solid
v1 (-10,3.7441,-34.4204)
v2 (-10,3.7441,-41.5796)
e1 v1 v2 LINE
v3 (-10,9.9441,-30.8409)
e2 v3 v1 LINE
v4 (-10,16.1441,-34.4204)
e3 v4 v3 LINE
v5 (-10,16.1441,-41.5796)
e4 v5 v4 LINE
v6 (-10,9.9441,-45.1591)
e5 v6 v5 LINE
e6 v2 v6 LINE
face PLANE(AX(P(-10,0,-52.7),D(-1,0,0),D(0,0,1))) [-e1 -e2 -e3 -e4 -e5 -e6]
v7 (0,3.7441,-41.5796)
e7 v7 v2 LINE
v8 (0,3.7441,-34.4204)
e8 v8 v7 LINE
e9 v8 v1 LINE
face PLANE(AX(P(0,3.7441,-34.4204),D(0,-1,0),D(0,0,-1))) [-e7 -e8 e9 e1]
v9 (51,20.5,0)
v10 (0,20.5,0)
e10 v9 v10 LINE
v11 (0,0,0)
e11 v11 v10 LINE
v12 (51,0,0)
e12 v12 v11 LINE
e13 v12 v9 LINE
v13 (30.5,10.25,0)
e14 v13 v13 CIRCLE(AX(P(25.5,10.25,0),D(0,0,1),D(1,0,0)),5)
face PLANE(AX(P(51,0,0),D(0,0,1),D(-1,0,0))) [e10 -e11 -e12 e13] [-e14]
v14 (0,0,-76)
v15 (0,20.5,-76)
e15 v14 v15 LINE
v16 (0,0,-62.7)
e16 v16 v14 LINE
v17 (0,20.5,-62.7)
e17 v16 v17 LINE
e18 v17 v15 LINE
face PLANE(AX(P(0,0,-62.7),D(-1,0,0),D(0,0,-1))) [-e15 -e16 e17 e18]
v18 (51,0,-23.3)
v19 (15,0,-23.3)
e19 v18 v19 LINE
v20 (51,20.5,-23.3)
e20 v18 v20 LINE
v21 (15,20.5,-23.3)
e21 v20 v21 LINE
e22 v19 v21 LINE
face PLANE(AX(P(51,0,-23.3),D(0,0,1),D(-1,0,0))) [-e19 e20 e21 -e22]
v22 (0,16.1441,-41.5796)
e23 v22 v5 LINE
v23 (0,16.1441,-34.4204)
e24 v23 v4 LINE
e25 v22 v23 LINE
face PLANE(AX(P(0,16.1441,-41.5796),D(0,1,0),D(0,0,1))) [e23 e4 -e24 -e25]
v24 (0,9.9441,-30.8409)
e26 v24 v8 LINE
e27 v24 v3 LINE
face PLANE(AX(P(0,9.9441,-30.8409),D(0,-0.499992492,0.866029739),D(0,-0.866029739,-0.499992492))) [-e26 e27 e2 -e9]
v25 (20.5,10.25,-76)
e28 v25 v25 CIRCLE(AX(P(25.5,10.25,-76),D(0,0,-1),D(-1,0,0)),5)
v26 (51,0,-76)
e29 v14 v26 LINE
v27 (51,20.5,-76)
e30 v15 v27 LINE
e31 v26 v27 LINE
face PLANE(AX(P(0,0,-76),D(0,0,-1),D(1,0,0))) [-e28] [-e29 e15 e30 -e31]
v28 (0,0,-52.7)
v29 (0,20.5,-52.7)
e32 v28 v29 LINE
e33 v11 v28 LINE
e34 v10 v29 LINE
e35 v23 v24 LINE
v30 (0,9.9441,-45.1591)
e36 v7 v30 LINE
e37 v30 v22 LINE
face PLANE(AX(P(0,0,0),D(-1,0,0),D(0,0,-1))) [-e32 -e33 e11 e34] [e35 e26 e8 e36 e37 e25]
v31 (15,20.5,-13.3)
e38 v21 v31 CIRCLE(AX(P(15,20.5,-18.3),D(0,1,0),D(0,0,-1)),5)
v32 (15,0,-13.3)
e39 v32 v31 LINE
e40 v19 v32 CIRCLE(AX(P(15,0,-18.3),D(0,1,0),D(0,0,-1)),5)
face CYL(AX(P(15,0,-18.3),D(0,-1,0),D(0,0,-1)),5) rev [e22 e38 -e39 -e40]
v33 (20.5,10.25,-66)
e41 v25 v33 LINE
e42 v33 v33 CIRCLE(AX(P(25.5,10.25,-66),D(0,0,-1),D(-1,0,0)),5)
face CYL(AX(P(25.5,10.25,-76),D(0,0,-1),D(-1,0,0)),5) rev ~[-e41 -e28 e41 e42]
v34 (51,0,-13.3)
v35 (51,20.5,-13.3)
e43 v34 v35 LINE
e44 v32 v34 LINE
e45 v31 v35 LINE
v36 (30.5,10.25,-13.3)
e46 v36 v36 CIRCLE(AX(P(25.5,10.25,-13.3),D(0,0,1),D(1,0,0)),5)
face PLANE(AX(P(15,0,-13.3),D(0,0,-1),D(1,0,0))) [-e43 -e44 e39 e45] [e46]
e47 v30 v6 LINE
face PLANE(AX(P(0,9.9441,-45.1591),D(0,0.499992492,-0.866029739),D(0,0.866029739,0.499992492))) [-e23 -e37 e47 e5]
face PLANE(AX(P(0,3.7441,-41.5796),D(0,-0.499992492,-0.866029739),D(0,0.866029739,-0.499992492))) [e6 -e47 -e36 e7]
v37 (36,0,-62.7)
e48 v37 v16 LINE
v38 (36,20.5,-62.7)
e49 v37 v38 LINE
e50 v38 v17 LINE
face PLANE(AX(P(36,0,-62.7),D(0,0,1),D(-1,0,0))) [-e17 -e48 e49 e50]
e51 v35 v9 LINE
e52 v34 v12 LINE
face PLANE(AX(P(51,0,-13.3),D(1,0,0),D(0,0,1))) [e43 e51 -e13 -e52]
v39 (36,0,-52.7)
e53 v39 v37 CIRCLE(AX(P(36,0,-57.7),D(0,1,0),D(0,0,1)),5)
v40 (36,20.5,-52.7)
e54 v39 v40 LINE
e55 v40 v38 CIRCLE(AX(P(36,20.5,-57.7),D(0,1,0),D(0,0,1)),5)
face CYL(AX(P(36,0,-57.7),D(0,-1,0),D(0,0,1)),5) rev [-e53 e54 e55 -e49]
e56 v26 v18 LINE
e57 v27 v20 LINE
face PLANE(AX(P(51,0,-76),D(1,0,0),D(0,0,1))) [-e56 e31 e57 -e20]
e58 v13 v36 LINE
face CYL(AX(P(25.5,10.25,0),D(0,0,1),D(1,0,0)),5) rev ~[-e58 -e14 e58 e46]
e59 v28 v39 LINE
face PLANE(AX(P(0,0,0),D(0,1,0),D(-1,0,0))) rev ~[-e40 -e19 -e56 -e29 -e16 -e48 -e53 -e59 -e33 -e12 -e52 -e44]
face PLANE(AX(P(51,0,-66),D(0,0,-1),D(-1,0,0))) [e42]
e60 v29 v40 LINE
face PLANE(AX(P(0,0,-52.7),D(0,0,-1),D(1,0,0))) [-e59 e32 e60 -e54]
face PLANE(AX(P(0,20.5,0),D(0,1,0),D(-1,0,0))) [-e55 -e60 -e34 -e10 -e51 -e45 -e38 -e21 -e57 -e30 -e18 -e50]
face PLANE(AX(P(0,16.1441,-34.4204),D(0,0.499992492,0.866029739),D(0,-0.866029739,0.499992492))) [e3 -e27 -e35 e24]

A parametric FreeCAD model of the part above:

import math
import FreeCAD as App
import Part
import Sketcher

V = App.Vector
Q = App.Units.Quantity

doc = App.newDocument("Part")
body = doc.addObject("PartDesign::Body", "Body")

# Sketch on XZ plane
sketch1 = body.newObject("Sketcher::SketchObject", "Sketch")
sketch1.AttachmentSupport = (doc.getObject("XZ_Plane"), [""])
sketch1.MapMode = "FlatFace"
sketch1.addGeometry([
    Part.LineSegment(V(0, -52.7, 0), V(0, 0, 0)),  # 0
    Part.LineSegment(V(0, 0, 0), V(51, 0, 0)),  # 1
    Part.LineSegment(V(51, 0, 0), V(51, -13.3, 0)),  # 2
    Part.LineSegment(V(51, -13.3, 0), V(15, -13.3, 0)),  # 3
    Part.ArcOfCircle(Part.Circle(V(15, -18.3, 0), V(0, 0, 1), 5), math.radians(90), math.radians(270)),  # 4
    Part.LineSegment(V(15, -23.3, 0), V(51, -23.3, 0)),  # 5
    Part.LineSegment(V(51, -23.3, 0), V(51, -76, 0)),  # 6
    Part.LineSegment(V(51, -76, 0), V(0, -76, 0)),  # 7
    Part.LineSegment(V(0, -76, 0), V(0, -62.7, 0)),  # 8
    Part.LineSegment(V(0, -62.7, 0), V(36, -62.7, 0)),  # 9
    Part.ArcOfCircle(Part.Circle(V(36, -57.7, 0), V(0, 0, 1), 5), math.radians(-90), math.radians(90)),  # 10
    Part.LineSegment(V(36, -52.7, 0), V(0, -52.7, 0)),  # 11
], False)
sketch1.addConstraint([
    Sketcher.Constraint("Coincident", 0, 2, 1, 1),
    Sketcher.Constraint("Coincident", 1, 2, 2, 1),
    Sketcher.Constraint("Coincident", 2, 2, 3, 1),
    Sketcher.Constraint("Tangent", 3, 2, 4, 1),
    Sketcher.Constraint("Tangent", 4, 2, 5, 1),
    Sketcher.Constraint("Coincident", 5, 2, 6, 1),
    Sketcher.Constraint("Coincident", 6, 2, 7, 1),
    Sketcher.Constraint("Coincident", 7, 2, 8, 1),
    Sketcher.Constraint("Coincident", 8, 2, 9, 1),
    Sketcher.Constraint("Tangent", 9, 2, 10, 1),
    Sketcher.Constraint("Tangent", 10, 2, 11, 1),
    Sketcher.Constraint("Coincident", 11, 2, 0, 1),
    Sketcher.Constraint("Vertical", 0),
    Sketcher.Constraint("Horizontal", 1),
    Sketcher.Constraint("Vertical", 2),
    Sketcher.Constraint("Horizontal", 3),
    Sketcher.Constraint("Horizontal", 5),
    Sketcher.Constraint("Vertical", 6),
    Sketcher.Constraint("Horizontal", 7),
    Sketcher.Constraint("Vertical", 8),
    Sketcher.Constraint("Horizontal", 9),
    Sketcher.Constraint("Horizontal", 11),
    Sketcher.Constraint("Coincident", 0, 2, -1, 1),
    Sketcher.Constraint("Equal", 4, 10),
    Sketcher.Constraint("PointOnObject", 7, 2, -2),
    Sketcher.Constraint("Vertical", 2, 2, 5, 2),
    Sketcher.Constraint("Equal", 5, 9),
    Sketcher.Constraint("Equal", 0, 6),
    Sketcher.Constraint("Radius", 4, 5.0),
    Sketcher.Constraint("DistanceX", 1, 1, 1, 2, 51.0),
    Sketcher.Constraint("DistanceY", 2, 2, 2, 1, 13.3),
    Sketcher.Constraint("DistanceX", -1, 1, 4, 3, 15.0),
    Sketcher.Constraint("DistanceY", 6, 2, -1, 1, 76.0),
])
pad1 = body.newObject("PartDesign::Pad", "Pad")
pad1.Profile = sketch1
pad1.Length = 20.5
pad1.Reversed = True

# Sketch on XY plane
sketch2 = body.newObject("Sketcher::SketchObject", "Sketch001")
sketch2.AttachmentSupport = (doc.getObject("XY_Plane"), [""])
sketch2.MapMode = "FlatFace"
sketch2.addGeometry(Part.Circle(V(25.5, 10.25, 0), V(0, 0, 1), 5), False)
sketch2.addConstraint([
    Sketcher.Constraint("Diameter", 0, 10.0),
    Sketcher.Constraint("DistanceX", -1, 1, 0, 3, 25.5),
    Sketcher.Constraint("DistanceY", -1, 1, 0, 3, 10.25),
])
pocket1 = body.newObject("PartDesign::Pocket", "Pocket")
pocket1.Profile = sketch2
pocket1.Type = "UpToFirst"

# Sketch on XY plane
sketch3 = body.newObject("Sketcher::SketchObject", "Sketch002")
sketch3.AttachmentSupport = (doc.getObject("XY_Plane"), [""])
sketch3.MapMode = "FlatFace"
sketch3.AttachmentOffset = App.Placement(V(0, 0, -76), App.Rotation())
sketch3.addGeometry(Part.Circle(V(25.5, 10.25, 0), V(0, 0, 1), 5), False)
sketch3.addConstraint([
    Sketcher.Constraint("Diameter", 0, 10.0),
    Sketcher.Constraint("DistanceX", -1, 1, 0, 3, 25.5),
    Sketcher.Constraint("DistanceY", -1, 1, 0, 3, 10.25),
])
pocket2 = body.newObject("PartDesign::Pocket", "Pocket001")
pocket2.Profile = sketch3
pocket2.Length = 10
pocket2.Reversed = True

# Sketch on YZ plane
sketch4 = body.newObject("Sketcher::SketchObject", "Sketch003")
sketch4.AttachmentSupport = (doc.getObject("YZ_Plane"), [""])
sketch4.MapMode = "FlatFace"
sketch4.addGeometry([
    Part.LineSegment(V(3.7441, -34.4204, 0), V(9.9441, -30.8409, 0)),  # 0
    Part.LineSegment(V(9.9441, -30.8409, 0), V(16.1441, -34.4204, 0)),  # 1
    Part.LineSegment(V(16.1441, -34.4204, 0), V(16.1441, -41.5796, 0)),  # 2
    Part.LineSegment(V(16.1441, -41.5796, 0), V(9.9441, -45.1591, 0)),  # 3
    Part.LineSegment(V(9.9441, -45.1591, 0), V(3.7441, -41.5796, 0)),  # 4
    Part.LineSegment(V(3.7441, -41.5796, 0), V(3.7441, -34.4204, 0)),  # 5
], False)
sketch4.addConstraint([
    Sketcher.Constraint("Coincident", 0, 2, 1, 1),
    Sketcher.Constraint("Coincident", 1, 2, 2, 1),
    Sketcher.Constraint("Coincident", 2, 2, 3, 1),
    Sketcher.Constraint("Coincident", 3, 2, 4, 1),
    Sketcher.Constraint("Coincident", 4, 2, 5, 1),
    Sketcher.Constraint("Coincident", 5, 2, 0, 1),
    Sketcher.Constraint("Vertical", 2),
    Sketcher.Constraint("Vertical", 5),
    Sketcher.Constraint("Parallel", 0, 3),
    Sketcher.Constraint("Parallel", 1, 4),
    Sketcher.Constraint("Horizontal", 2, 2, 4, 2),
    Sketcher.Constraint("Horizontal", 1, 2, 5, 2),
    Sketcher.Constraint("Vertical", 0, 2, 3, 2),
    Sketcher.Constraint("DistanceX", 4, 2, 2, 2, 12.4),
    Sketcher.Constraint("Angle", 0, Q("29.9995 deg")),
    Sketcher.Constraint("DistanceY", 2, 2, 2, 1, 7.1592),
    Sketcher.Constraint("DistanceX", -1, 1, 0, 2, 9.944),
    Sketcher.Constraint("DistanceY", 0, 2, -1, 1, 30.841),
])
pad2 = body.newObject("PartDesign::Pad", "Pad001")
pad2.Profile = sketch4
pad2.Length = 10
pad2.Reversed = True

doc.recompute()
